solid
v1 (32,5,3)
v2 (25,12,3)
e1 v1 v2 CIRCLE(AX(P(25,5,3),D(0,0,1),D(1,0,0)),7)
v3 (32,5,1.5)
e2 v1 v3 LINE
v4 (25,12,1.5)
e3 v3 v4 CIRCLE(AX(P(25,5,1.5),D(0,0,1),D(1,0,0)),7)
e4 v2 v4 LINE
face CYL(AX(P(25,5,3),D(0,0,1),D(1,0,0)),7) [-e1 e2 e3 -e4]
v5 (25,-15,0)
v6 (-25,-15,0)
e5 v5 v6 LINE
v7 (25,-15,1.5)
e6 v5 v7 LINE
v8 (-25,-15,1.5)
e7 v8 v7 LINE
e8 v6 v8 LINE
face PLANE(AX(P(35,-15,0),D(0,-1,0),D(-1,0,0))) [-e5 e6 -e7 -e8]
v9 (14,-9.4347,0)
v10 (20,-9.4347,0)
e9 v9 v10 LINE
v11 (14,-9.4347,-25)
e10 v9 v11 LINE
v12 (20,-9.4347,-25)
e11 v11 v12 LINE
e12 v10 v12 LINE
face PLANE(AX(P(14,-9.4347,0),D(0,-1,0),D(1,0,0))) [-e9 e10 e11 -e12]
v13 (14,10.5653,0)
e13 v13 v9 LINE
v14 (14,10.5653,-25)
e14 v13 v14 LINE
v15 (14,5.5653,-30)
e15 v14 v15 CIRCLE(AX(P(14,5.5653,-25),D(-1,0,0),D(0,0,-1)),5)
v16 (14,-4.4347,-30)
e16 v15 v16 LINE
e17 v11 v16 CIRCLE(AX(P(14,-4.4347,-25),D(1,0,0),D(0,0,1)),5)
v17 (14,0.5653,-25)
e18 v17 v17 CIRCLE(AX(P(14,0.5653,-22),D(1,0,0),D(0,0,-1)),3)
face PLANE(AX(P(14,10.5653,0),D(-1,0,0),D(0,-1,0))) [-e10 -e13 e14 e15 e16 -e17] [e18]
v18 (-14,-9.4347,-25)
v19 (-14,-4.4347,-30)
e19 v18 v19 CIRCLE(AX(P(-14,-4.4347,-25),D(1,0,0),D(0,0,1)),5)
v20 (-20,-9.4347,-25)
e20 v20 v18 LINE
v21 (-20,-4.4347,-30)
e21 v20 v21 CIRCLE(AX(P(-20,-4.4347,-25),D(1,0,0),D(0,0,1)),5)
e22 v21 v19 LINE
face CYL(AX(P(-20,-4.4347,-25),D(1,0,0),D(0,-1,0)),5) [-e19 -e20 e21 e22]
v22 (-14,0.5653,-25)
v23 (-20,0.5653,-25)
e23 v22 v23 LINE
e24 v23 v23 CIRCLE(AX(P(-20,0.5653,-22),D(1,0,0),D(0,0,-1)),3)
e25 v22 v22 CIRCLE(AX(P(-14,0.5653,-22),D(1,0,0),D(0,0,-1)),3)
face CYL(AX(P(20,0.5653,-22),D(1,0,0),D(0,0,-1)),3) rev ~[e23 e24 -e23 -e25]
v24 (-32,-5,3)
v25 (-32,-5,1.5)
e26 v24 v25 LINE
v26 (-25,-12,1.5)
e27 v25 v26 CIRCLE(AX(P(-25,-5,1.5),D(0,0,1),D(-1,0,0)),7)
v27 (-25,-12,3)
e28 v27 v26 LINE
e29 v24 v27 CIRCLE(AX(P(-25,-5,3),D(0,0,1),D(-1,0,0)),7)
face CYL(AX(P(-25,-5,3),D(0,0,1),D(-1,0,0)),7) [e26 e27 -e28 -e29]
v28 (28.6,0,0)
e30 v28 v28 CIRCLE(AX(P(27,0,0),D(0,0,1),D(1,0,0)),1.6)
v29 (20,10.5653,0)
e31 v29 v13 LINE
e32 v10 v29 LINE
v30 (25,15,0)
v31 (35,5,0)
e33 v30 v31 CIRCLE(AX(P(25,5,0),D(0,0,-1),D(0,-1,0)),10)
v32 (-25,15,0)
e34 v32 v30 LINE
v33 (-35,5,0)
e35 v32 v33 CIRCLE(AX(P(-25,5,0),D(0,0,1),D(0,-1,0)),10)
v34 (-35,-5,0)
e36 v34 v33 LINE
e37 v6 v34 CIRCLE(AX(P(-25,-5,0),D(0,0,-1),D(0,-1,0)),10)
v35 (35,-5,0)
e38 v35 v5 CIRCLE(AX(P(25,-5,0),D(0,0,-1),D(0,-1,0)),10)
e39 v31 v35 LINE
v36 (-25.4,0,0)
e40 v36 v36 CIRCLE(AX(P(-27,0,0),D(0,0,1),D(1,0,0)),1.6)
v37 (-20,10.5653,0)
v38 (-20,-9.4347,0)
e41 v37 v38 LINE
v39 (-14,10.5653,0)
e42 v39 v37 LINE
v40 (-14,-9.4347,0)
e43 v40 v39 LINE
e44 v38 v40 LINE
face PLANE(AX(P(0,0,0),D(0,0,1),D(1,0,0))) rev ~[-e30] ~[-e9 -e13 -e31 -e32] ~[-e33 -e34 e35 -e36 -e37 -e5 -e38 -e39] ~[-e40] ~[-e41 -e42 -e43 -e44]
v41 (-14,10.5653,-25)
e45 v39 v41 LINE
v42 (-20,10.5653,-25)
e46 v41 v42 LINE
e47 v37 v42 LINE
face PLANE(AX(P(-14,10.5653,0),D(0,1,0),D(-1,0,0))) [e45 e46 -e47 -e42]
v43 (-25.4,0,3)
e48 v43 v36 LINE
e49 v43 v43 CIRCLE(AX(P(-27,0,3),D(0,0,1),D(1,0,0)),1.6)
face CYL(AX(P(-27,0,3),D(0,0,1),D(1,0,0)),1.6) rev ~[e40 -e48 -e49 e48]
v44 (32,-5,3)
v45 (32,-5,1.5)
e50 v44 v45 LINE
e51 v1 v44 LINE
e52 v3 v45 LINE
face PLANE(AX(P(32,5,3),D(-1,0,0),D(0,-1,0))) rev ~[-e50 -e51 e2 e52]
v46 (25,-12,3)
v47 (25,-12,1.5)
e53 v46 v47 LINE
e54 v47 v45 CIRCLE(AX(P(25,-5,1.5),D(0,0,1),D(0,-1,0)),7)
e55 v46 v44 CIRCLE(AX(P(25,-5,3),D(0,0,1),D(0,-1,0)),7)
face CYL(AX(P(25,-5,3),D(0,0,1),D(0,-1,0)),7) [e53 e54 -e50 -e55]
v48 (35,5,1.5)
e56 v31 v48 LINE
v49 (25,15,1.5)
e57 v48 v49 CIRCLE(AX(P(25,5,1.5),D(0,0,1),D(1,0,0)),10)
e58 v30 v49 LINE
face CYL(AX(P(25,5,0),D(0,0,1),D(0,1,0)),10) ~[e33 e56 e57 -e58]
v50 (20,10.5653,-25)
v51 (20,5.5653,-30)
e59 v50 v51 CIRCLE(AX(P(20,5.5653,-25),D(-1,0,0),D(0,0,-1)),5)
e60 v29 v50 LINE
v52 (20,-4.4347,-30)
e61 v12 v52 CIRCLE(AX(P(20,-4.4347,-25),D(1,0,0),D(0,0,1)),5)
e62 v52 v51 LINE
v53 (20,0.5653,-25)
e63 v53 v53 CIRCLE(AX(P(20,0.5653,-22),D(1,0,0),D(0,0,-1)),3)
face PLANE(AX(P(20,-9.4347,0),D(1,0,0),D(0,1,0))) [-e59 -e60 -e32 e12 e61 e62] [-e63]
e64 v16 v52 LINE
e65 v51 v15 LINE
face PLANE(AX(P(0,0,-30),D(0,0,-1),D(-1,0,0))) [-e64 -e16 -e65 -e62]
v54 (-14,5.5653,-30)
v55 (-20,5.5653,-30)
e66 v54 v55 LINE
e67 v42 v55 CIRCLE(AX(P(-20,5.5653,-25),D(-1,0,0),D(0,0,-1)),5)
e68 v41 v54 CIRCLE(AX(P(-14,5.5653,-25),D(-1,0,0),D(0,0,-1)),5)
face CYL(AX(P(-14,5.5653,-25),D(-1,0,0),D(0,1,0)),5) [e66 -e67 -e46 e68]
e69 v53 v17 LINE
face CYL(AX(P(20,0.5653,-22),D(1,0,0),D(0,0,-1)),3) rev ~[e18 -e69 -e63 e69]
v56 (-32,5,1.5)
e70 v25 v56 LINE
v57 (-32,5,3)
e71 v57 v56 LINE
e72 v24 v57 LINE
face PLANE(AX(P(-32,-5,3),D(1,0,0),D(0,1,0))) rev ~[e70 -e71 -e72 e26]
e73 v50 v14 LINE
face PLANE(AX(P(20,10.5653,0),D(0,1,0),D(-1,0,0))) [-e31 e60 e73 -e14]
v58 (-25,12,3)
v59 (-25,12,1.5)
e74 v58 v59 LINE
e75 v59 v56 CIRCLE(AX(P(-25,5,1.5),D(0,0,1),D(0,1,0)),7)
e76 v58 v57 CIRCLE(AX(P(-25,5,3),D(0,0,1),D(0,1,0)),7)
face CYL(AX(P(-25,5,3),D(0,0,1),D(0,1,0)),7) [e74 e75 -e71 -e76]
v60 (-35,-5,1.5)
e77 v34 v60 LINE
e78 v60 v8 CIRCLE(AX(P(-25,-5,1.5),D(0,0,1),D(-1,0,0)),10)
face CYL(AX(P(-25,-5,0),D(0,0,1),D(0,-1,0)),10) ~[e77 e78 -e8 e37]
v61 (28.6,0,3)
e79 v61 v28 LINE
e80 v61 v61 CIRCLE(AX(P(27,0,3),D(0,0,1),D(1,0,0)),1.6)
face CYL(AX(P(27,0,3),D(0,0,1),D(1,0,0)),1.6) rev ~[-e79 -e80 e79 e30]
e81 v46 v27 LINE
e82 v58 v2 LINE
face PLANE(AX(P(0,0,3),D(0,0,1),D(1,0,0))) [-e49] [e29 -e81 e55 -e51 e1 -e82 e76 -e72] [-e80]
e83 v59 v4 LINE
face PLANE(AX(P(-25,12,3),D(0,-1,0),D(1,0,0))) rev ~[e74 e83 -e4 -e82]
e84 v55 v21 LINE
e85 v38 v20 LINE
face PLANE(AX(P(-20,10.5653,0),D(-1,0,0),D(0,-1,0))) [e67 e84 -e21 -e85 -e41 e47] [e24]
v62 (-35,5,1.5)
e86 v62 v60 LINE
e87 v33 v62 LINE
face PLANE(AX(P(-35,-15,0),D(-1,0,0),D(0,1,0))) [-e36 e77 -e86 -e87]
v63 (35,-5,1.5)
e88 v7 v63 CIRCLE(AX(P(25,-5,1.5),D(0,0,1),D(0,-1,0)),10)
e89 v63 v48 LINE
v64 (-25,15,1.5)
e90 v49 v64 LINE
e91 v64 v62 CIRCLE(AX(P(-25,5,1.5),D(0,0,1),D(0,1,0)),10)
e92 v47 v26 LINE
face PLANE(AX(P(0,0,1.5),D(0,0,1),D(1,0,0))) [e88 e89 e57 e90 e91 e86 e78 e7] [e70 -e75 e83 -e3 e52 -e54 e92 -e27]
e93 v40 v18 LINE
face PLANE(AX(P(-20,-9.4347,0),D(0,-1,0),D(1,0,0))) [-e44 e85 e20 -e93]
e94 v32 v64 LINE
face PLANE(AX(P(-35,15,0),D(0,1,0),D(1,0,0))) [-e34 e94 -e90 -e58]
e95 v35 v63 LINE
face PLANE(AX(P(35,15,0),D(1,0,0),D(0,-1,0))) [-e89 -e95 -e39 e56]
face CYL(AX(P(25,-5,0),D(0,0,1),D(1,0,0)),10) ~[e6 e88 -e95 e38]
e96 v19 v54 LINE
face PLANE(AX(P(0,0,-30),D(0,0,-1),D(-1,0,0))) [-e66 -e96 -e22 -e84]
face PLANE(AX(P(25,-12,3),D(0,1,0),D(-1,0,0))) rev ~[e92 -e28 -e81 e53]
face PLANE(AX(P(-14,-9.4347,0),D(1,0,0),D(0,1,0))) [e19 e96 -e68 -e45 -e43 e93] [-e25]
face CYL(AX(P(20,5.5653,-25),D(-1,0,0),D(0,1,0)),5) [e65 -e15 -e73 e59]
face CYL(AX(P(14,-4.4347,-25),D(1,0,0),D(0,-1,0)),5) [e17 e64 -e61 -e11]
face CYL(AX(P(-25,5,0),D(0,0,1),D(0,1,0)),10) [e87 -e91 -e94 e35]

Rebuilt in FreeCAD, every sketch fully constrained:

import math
import FreeCAD as App
import Part
import Sketcher

V = App.Vector


def edges_at(feature, points):
    """Names of the edges that pass closest to the given points."""
    edges = feature.Shape.Edges
    near = lambda p: min(range(len(edges)), key=lambda i: edges[i].distToShape(Part.Vertex(*p))[0])
    return sorted({f"Edge{near(p) + 1}" for p in points})

doc = App.newDocument("Part")
body = doc.addObject("PartDesign::Body", "Body")

# Sketch on XY plane
sketch1 = body.newObject("Sketcher::SketchObject", "Sketch")
sketch1.AttachmentSupport = (doc.getObject("XY_Plane"), [""])
sketch1.MapMode = "FlatFace"
sketch1.addGeometry([
    Part.LineSegment(V(35, 15, 0), V(-35, 15, 0)),
    Part.LineSegment(V(-35, 15, 0), V(-35, -15, 0)),
    Part.LineSegment(V(-35, -15, 0), V(35, -15, 0)),
    Part.LineSegment(V(35, -15, 0), V(35, 15, 0)),
], False)
sketch1.addConstraint([
    Sketcher.Constraint("Coincident", 0, 2, 1, 1),
    Sketcher.Constraint("Coincident", 1, 2, 2, 1),
    Sketcher.Constraint("Coincident", 2, 2, 3, 1),
    Sketcher.Constraint("Coincident", 3, 2, 0, 1),
    Sketcher.Constraint("Horizontal", 0),
    Sketcher.Constraint("Vertical", 1),
    Sketcher.Constraint("Horizontal", 2),
    Sketcher.Constraint("Vertical", 3),
    Sketcher.Constraint("Symmetric", 0, 2, 2, 2, -1, 1),
    Sketcher.Constraint("DistanceX", 0, 2, 0, 1, 70.0),
    Sketcher.Constraint("DistanceY", 1, 2, 1, 1, 30.0),
])
pad1 = body.newObject("PartDesign::Pad", "Pad")
pad1.Profile = sketch1
pad1.Length = 3
doc.recompute()

fillet = body.newObject("PartDesign::Fillet", "Fillet")
fillet.Base = (pad1, edges_at(pad1, [
    (-35, 15, 1.5),
    (-35, -15, 1.5),
    (35, -15, 1.5),
    (35, 15, 1.5),
]))
fillet.Radius = 10

# Sketch on XY plane
sketch2 = body.newObject("Sketcher::SketchObject", "Sketch001")
sketch2.AttachmentSupport = (doc.getObject("XY_Plane"), [""])
sketch2.MapMode = "FlatFace"
sketch2.AttachmentOffset = App.Placement(V(0, 0, 3), App.Rotation())
sketch2.addGeometry([
    Part.LineSegment(V(35, -5, 0), V(35, 5, 0)),  # 0
    Part.ArcOfCircle(Part.Circle(V(25, 5, 0), V(0, 0, 1), 10), math.radians(0), math.radians(90)),  # 1
    Part.LineSegment(V(25, 15, 0), V(-25, 15, 0)),  # 2
    Part.ArcOfCircle(Part.Circle(V(-25, 5, 0), V(0, 0, 1), 10), math.radians(90), math.radians(180)),  # 3
    Part.LineSegment(V(-35, 5, 0), V(-35, -5, 0)),  # 4
    Part.ArcOfCircle(Part.Circle(V(-25, -5, 0), V(0, 0, 1), 10), math.radians(180), math.radians(270)),  # 5
    Part.LineSegment(V(-25, -15, 0), V(25, -15, 0)),  # 6
    Part.ArcOfCircle(Part.Circle(V(25, -5, 0), V(0, 0, 1), 10), math.radians(-90), math.radians(0)),  # 7
    Part.ArcOfCircle(Part.Circle(V(-25, 5, 0), V(0, 0, 1), 7), math.radians(90), math.radians(180)),  # 8
    Part.LineSegment(V(-25, 12, 0), V(25, 12, 0)),  # 9
    Part.ArcOfCircle(Part.Circle(V(25, 5, 0), V(0, 0, 1), 7), math.radians(0), math.radians(90)),  # 10
    Part.LineSegment(V(32, 5, 0), V(32, -5, 0)),  # 11
    Part.ArcOfCircle(Part.Circle(V(25, -5, 0), V(0, 0, 1), 7), math.radians(-90), math.radians(0)),  # 12
    Part.LineSegment(V(25, -12, 0), V(-25, -12, 0)),  # 13
    Part.ArcOfCircle(Part.Circle(V(-25, -5, 0), V(0, 0, 1), 7), math.radians(180), math.radians(270)),  # 14
    Part.LineSegment(V(-32, -5, 0), V(-32, 5, 0)),  # 15
], False)
sketch2.addConstraint([
    Sketcher.Constraint("Tangent", 0, 2, 1, 1),
    Sketcher.Constraint("Tangent", 1, 2, 2, 1),
    Sketcher.Constraint("Tangent", 2, 2, 3, 1),
    Sketcher.Constraint("Tangent", 3, 2, 4, 1),
    Sketcher.Constraint("Tangent", 4, 2, 5, 1),
    Sketcher.Constraint("Tangent", 5, 2, 6, 1),
    Sketcher.Constraint("Tangent", 6, 2, 7, 1),
    Sketcher.Constraint("Tangent", 7, 2, 0, 1),
    Sketcher.Constraint("Tangent", 8, 1, 9, 1),
    Sketcher.Constraint("Tangent", 9, 2, 10, 2),
    Sketcher.Constraint("Tangent", 10, 1, 11, 1),
    Sketcher.Constraint("Tangent", 11, 2, 12, 2),
    Sketcher.Constraint("Tangent", 12, 1, 13, 1),
    Sketcher.Constraint("Tangent", 13, 2, 14, 2),
    Sketcher.Constraint("Tangent", 14, 1, 15, 1),
    Sketcher.Constraint("Tangent", 15, 2, 8, 2),
    Sketcher.Constraint("Vertical", 0),
    Sketcher.Constraint("Horizontal", 2),
    Sketcher.Constraint("Vertical", 4),
    Sketcher.Constraint("Horizontal", 6),
    Sketcher.Constraint("Horizontal", 9),
    Sketcher.Constraint("Vertical", 11),
    Sketcher.Constraint("Horizontal", 13),
    Sketcher.Constraint("Vertical", 15),
    Sketcher.Constraint("Coincident", 8, 3, 3, 3),
    Sketcher.Constraint("Coincident", 10, 3, 1, 3),
    Sketcher.Constraint("Coincident", 12, 3, 7, 3),
    Sketcher.Constraint("Equal", 1, 3),
    Sketcher.Constraint("Equal", 3, 5),
    Sketcher.Constraint("Equal", 5, 7),
    Sketcher.Constraint("Equal", 12, 14),
    Sketcher.Constraint("Symmetric", 1, 3, 5, 3, -1, 1),
    Sketcher.Constraint("Radius", 1, 10.0),
    Sketcher.Constraint("Radius", 8, 7.0),
    Sketcher.Constraint("DistanceX", 2, 2, 2, 1, 50.0),
    Sketcher.Constraint("DistanceY", 0, 1, 0, 2, 10.0),
])
pocket1 = body.newObject("PartDesign::Pocket", "Pocket")
pocket1.Profile = sketch2
pocket1.Length = 1.5

# Sketch on XY plane
sketch3 = body.newObject("Sketcher::SketchObject", "Sketch002")
sketch3.AttachmentSupport = (doc.getObject("XY_Plane"), [""])
sketch3.MapMode = "FlatFace"
sketch3.AttachmentOffset = App.Placement(V(0, 0, 3), App.Rotation())
sketch3.addGeometry([
    Part.Circle(V(-27, 0, 0), V(0, 0, 1), 1.6),
    Part.Circle(V(27, 0, 0), V(0, 0, 1), 1.6),
], False)
sketch3.addConstraint([
    Sketcher.Constraint("Equal", 0, 1),
    Sketcher.Constraint("Symmetric", 0, 3, 1, 3, -1, 1),
    Sketcher.Constraint("PointOnObject", 0, 3, -1),
    Sketcher.Constraint("Diameter", 0, 3.2),
    Sketcher.Constraint("DistanceX", 0, 3, -1, 1, 27.0),
])
pocket2 = body.newObject("PartDesign::Pocket", "Pocket001")
pocket2.Profile = sketch3
pocket2.Type = "ThroughAll"

# Sketch on XY plane
sketch4 = body.newObject("Sketcher::SketchObject", "Sketch003")
sketch4.AttachmentSupport = (doc.getObject("XY_Plane"), [""])
sketch4.MapMode = "FlatFace"
sketch4.addGeometry([
    Part.LineSegment(V(14, 10.5653, 0), V(20, 10.5653, 0)),  # 0
    Part.LineSegment(V(20, 10.5653, 0), V(20, -9.4347, 0)),  # 1
    Part.LineSegment(V(20, -9.4347, 0), V(14, -9.4347, 0)),  # 2
    Part.LineSegment(V(14, -9.4347, 0), V(14, 10.5653, 0)),  # 3
    Part.LineSegment(V(-20, 10.5653, 0), V(-14, 10.5653, 0)),  # 4
    Part.LineSegment(V(-14, 10.5653, 0), V(-14, -9.4347, 0)),  # 5
    Part.LineSegment(V(-14, -9.4347, 0), V(-20, -9.4347, 0)),  # 6
    Part.LineSegment(V(-20, -9.4347, 0), V(-20, 10.5653, 0)),  # 7
], False)
sketch4.addConstraint([
    Sketcher.Constraint("Coincident", 0, 2, 1, 1),
    Sketcher.Constraint("Coincident", 1, 2, 2, 1),
    Sketcher.Constraint("Coincident", 2, 2, 3, 1),
    Sketcher.Constraint("Coincident", 3, 2, 0, 1),
    Sketcher.Constraint("Coincident", 4, 2, 5, 1),
    Sketcher.Constraint("Coincident", 5, 2, 6, 1),
    Sketcher.Constraint("Coincident", 6, 2, 7, 1),
    Sketcher.Constraint("Coincident", 7, 2, 4, 1),
    Sketcher.Constraint("Horizontal", 0),
    Sketcher.Constraint("Vertical", 1),
    Sketcher.Constraint("Horizontal", 2),
    Sketcher.Constraint("Vertical", 3),
    Sketcher.Constraint("Horizontal", 4),
    Sketcher.Constraint("Vertical", 5),
    Sketcher.Constraint("Horizontal", 6),
    Sketcher.Constraint("Vertical", 7),
    Sketcher.Constraint("Symmetric", 3, 2, 4, 2, -2),
    Sketcher.Constraint("Symmetric", 1, 2, 6, 2, -2),
    Sketcher.Constraint("DistanceX", 0, 1, 0, 2, 6.0),
    Sketcher.Constraint("DistanceY", 1, 2, 1, 1, 20.0),
    Sketcher.Constraint("DistanceX", -1, 1, 0, 2, 20.0),
    Sketcher.Constraint("DistanceY", -1, 1, 0, 2, 10.5653),
])
pad2 = body.newObject("PartDesign::Pad", "Pad001")
pad2.Profile = sketch4
pad2.Length = 30
pad2.Reversed = True

# Sketch on YZ plane
sketch5 = body.newObject("Sketcher::SketchObject", "Sketch004")
sketch5.AttachmentSupport = (doc.getObject("YZ_Plane"), [""])
sketch5.MapMode = "FlatFace"
sketch5.AttachmentOffset = App.Placement(V(0, 0, 20), App.Rotation())
sketch5.addGeometry(Part.Circle(V(0.5653, -22, 0), V(0, 0, 1), 3), False)
sketch5.addConstraint([
    Sketcher.Constraint("Diameter", 0, 6.0),
    Sketcher.Constraint("DistanceY", 0, 3, -1, 1, 22.0),
    Sketcher.Constraint("DistanceX", -1, 1, 0, 3, 0.5653),
])
pocket3 = body.newObject("PartDesign::Pocket", "Pocket002")
pocket3.Profile = sketch5
pocket3.Type = "ThroughAll"
doc.recompute()

fillet2 = body.newObject("PartDesign::Fillet", "Fillet001")
fillet2.Base = (pocket3, edges_at(pocket3, [
    (17, -9.435, -30),
    (17, 10.565, -30),
    (-17, 10.565, -30),
    (-17, -9.435, -30),
]))
fillet2.Radius = 5

doc.recompute()
